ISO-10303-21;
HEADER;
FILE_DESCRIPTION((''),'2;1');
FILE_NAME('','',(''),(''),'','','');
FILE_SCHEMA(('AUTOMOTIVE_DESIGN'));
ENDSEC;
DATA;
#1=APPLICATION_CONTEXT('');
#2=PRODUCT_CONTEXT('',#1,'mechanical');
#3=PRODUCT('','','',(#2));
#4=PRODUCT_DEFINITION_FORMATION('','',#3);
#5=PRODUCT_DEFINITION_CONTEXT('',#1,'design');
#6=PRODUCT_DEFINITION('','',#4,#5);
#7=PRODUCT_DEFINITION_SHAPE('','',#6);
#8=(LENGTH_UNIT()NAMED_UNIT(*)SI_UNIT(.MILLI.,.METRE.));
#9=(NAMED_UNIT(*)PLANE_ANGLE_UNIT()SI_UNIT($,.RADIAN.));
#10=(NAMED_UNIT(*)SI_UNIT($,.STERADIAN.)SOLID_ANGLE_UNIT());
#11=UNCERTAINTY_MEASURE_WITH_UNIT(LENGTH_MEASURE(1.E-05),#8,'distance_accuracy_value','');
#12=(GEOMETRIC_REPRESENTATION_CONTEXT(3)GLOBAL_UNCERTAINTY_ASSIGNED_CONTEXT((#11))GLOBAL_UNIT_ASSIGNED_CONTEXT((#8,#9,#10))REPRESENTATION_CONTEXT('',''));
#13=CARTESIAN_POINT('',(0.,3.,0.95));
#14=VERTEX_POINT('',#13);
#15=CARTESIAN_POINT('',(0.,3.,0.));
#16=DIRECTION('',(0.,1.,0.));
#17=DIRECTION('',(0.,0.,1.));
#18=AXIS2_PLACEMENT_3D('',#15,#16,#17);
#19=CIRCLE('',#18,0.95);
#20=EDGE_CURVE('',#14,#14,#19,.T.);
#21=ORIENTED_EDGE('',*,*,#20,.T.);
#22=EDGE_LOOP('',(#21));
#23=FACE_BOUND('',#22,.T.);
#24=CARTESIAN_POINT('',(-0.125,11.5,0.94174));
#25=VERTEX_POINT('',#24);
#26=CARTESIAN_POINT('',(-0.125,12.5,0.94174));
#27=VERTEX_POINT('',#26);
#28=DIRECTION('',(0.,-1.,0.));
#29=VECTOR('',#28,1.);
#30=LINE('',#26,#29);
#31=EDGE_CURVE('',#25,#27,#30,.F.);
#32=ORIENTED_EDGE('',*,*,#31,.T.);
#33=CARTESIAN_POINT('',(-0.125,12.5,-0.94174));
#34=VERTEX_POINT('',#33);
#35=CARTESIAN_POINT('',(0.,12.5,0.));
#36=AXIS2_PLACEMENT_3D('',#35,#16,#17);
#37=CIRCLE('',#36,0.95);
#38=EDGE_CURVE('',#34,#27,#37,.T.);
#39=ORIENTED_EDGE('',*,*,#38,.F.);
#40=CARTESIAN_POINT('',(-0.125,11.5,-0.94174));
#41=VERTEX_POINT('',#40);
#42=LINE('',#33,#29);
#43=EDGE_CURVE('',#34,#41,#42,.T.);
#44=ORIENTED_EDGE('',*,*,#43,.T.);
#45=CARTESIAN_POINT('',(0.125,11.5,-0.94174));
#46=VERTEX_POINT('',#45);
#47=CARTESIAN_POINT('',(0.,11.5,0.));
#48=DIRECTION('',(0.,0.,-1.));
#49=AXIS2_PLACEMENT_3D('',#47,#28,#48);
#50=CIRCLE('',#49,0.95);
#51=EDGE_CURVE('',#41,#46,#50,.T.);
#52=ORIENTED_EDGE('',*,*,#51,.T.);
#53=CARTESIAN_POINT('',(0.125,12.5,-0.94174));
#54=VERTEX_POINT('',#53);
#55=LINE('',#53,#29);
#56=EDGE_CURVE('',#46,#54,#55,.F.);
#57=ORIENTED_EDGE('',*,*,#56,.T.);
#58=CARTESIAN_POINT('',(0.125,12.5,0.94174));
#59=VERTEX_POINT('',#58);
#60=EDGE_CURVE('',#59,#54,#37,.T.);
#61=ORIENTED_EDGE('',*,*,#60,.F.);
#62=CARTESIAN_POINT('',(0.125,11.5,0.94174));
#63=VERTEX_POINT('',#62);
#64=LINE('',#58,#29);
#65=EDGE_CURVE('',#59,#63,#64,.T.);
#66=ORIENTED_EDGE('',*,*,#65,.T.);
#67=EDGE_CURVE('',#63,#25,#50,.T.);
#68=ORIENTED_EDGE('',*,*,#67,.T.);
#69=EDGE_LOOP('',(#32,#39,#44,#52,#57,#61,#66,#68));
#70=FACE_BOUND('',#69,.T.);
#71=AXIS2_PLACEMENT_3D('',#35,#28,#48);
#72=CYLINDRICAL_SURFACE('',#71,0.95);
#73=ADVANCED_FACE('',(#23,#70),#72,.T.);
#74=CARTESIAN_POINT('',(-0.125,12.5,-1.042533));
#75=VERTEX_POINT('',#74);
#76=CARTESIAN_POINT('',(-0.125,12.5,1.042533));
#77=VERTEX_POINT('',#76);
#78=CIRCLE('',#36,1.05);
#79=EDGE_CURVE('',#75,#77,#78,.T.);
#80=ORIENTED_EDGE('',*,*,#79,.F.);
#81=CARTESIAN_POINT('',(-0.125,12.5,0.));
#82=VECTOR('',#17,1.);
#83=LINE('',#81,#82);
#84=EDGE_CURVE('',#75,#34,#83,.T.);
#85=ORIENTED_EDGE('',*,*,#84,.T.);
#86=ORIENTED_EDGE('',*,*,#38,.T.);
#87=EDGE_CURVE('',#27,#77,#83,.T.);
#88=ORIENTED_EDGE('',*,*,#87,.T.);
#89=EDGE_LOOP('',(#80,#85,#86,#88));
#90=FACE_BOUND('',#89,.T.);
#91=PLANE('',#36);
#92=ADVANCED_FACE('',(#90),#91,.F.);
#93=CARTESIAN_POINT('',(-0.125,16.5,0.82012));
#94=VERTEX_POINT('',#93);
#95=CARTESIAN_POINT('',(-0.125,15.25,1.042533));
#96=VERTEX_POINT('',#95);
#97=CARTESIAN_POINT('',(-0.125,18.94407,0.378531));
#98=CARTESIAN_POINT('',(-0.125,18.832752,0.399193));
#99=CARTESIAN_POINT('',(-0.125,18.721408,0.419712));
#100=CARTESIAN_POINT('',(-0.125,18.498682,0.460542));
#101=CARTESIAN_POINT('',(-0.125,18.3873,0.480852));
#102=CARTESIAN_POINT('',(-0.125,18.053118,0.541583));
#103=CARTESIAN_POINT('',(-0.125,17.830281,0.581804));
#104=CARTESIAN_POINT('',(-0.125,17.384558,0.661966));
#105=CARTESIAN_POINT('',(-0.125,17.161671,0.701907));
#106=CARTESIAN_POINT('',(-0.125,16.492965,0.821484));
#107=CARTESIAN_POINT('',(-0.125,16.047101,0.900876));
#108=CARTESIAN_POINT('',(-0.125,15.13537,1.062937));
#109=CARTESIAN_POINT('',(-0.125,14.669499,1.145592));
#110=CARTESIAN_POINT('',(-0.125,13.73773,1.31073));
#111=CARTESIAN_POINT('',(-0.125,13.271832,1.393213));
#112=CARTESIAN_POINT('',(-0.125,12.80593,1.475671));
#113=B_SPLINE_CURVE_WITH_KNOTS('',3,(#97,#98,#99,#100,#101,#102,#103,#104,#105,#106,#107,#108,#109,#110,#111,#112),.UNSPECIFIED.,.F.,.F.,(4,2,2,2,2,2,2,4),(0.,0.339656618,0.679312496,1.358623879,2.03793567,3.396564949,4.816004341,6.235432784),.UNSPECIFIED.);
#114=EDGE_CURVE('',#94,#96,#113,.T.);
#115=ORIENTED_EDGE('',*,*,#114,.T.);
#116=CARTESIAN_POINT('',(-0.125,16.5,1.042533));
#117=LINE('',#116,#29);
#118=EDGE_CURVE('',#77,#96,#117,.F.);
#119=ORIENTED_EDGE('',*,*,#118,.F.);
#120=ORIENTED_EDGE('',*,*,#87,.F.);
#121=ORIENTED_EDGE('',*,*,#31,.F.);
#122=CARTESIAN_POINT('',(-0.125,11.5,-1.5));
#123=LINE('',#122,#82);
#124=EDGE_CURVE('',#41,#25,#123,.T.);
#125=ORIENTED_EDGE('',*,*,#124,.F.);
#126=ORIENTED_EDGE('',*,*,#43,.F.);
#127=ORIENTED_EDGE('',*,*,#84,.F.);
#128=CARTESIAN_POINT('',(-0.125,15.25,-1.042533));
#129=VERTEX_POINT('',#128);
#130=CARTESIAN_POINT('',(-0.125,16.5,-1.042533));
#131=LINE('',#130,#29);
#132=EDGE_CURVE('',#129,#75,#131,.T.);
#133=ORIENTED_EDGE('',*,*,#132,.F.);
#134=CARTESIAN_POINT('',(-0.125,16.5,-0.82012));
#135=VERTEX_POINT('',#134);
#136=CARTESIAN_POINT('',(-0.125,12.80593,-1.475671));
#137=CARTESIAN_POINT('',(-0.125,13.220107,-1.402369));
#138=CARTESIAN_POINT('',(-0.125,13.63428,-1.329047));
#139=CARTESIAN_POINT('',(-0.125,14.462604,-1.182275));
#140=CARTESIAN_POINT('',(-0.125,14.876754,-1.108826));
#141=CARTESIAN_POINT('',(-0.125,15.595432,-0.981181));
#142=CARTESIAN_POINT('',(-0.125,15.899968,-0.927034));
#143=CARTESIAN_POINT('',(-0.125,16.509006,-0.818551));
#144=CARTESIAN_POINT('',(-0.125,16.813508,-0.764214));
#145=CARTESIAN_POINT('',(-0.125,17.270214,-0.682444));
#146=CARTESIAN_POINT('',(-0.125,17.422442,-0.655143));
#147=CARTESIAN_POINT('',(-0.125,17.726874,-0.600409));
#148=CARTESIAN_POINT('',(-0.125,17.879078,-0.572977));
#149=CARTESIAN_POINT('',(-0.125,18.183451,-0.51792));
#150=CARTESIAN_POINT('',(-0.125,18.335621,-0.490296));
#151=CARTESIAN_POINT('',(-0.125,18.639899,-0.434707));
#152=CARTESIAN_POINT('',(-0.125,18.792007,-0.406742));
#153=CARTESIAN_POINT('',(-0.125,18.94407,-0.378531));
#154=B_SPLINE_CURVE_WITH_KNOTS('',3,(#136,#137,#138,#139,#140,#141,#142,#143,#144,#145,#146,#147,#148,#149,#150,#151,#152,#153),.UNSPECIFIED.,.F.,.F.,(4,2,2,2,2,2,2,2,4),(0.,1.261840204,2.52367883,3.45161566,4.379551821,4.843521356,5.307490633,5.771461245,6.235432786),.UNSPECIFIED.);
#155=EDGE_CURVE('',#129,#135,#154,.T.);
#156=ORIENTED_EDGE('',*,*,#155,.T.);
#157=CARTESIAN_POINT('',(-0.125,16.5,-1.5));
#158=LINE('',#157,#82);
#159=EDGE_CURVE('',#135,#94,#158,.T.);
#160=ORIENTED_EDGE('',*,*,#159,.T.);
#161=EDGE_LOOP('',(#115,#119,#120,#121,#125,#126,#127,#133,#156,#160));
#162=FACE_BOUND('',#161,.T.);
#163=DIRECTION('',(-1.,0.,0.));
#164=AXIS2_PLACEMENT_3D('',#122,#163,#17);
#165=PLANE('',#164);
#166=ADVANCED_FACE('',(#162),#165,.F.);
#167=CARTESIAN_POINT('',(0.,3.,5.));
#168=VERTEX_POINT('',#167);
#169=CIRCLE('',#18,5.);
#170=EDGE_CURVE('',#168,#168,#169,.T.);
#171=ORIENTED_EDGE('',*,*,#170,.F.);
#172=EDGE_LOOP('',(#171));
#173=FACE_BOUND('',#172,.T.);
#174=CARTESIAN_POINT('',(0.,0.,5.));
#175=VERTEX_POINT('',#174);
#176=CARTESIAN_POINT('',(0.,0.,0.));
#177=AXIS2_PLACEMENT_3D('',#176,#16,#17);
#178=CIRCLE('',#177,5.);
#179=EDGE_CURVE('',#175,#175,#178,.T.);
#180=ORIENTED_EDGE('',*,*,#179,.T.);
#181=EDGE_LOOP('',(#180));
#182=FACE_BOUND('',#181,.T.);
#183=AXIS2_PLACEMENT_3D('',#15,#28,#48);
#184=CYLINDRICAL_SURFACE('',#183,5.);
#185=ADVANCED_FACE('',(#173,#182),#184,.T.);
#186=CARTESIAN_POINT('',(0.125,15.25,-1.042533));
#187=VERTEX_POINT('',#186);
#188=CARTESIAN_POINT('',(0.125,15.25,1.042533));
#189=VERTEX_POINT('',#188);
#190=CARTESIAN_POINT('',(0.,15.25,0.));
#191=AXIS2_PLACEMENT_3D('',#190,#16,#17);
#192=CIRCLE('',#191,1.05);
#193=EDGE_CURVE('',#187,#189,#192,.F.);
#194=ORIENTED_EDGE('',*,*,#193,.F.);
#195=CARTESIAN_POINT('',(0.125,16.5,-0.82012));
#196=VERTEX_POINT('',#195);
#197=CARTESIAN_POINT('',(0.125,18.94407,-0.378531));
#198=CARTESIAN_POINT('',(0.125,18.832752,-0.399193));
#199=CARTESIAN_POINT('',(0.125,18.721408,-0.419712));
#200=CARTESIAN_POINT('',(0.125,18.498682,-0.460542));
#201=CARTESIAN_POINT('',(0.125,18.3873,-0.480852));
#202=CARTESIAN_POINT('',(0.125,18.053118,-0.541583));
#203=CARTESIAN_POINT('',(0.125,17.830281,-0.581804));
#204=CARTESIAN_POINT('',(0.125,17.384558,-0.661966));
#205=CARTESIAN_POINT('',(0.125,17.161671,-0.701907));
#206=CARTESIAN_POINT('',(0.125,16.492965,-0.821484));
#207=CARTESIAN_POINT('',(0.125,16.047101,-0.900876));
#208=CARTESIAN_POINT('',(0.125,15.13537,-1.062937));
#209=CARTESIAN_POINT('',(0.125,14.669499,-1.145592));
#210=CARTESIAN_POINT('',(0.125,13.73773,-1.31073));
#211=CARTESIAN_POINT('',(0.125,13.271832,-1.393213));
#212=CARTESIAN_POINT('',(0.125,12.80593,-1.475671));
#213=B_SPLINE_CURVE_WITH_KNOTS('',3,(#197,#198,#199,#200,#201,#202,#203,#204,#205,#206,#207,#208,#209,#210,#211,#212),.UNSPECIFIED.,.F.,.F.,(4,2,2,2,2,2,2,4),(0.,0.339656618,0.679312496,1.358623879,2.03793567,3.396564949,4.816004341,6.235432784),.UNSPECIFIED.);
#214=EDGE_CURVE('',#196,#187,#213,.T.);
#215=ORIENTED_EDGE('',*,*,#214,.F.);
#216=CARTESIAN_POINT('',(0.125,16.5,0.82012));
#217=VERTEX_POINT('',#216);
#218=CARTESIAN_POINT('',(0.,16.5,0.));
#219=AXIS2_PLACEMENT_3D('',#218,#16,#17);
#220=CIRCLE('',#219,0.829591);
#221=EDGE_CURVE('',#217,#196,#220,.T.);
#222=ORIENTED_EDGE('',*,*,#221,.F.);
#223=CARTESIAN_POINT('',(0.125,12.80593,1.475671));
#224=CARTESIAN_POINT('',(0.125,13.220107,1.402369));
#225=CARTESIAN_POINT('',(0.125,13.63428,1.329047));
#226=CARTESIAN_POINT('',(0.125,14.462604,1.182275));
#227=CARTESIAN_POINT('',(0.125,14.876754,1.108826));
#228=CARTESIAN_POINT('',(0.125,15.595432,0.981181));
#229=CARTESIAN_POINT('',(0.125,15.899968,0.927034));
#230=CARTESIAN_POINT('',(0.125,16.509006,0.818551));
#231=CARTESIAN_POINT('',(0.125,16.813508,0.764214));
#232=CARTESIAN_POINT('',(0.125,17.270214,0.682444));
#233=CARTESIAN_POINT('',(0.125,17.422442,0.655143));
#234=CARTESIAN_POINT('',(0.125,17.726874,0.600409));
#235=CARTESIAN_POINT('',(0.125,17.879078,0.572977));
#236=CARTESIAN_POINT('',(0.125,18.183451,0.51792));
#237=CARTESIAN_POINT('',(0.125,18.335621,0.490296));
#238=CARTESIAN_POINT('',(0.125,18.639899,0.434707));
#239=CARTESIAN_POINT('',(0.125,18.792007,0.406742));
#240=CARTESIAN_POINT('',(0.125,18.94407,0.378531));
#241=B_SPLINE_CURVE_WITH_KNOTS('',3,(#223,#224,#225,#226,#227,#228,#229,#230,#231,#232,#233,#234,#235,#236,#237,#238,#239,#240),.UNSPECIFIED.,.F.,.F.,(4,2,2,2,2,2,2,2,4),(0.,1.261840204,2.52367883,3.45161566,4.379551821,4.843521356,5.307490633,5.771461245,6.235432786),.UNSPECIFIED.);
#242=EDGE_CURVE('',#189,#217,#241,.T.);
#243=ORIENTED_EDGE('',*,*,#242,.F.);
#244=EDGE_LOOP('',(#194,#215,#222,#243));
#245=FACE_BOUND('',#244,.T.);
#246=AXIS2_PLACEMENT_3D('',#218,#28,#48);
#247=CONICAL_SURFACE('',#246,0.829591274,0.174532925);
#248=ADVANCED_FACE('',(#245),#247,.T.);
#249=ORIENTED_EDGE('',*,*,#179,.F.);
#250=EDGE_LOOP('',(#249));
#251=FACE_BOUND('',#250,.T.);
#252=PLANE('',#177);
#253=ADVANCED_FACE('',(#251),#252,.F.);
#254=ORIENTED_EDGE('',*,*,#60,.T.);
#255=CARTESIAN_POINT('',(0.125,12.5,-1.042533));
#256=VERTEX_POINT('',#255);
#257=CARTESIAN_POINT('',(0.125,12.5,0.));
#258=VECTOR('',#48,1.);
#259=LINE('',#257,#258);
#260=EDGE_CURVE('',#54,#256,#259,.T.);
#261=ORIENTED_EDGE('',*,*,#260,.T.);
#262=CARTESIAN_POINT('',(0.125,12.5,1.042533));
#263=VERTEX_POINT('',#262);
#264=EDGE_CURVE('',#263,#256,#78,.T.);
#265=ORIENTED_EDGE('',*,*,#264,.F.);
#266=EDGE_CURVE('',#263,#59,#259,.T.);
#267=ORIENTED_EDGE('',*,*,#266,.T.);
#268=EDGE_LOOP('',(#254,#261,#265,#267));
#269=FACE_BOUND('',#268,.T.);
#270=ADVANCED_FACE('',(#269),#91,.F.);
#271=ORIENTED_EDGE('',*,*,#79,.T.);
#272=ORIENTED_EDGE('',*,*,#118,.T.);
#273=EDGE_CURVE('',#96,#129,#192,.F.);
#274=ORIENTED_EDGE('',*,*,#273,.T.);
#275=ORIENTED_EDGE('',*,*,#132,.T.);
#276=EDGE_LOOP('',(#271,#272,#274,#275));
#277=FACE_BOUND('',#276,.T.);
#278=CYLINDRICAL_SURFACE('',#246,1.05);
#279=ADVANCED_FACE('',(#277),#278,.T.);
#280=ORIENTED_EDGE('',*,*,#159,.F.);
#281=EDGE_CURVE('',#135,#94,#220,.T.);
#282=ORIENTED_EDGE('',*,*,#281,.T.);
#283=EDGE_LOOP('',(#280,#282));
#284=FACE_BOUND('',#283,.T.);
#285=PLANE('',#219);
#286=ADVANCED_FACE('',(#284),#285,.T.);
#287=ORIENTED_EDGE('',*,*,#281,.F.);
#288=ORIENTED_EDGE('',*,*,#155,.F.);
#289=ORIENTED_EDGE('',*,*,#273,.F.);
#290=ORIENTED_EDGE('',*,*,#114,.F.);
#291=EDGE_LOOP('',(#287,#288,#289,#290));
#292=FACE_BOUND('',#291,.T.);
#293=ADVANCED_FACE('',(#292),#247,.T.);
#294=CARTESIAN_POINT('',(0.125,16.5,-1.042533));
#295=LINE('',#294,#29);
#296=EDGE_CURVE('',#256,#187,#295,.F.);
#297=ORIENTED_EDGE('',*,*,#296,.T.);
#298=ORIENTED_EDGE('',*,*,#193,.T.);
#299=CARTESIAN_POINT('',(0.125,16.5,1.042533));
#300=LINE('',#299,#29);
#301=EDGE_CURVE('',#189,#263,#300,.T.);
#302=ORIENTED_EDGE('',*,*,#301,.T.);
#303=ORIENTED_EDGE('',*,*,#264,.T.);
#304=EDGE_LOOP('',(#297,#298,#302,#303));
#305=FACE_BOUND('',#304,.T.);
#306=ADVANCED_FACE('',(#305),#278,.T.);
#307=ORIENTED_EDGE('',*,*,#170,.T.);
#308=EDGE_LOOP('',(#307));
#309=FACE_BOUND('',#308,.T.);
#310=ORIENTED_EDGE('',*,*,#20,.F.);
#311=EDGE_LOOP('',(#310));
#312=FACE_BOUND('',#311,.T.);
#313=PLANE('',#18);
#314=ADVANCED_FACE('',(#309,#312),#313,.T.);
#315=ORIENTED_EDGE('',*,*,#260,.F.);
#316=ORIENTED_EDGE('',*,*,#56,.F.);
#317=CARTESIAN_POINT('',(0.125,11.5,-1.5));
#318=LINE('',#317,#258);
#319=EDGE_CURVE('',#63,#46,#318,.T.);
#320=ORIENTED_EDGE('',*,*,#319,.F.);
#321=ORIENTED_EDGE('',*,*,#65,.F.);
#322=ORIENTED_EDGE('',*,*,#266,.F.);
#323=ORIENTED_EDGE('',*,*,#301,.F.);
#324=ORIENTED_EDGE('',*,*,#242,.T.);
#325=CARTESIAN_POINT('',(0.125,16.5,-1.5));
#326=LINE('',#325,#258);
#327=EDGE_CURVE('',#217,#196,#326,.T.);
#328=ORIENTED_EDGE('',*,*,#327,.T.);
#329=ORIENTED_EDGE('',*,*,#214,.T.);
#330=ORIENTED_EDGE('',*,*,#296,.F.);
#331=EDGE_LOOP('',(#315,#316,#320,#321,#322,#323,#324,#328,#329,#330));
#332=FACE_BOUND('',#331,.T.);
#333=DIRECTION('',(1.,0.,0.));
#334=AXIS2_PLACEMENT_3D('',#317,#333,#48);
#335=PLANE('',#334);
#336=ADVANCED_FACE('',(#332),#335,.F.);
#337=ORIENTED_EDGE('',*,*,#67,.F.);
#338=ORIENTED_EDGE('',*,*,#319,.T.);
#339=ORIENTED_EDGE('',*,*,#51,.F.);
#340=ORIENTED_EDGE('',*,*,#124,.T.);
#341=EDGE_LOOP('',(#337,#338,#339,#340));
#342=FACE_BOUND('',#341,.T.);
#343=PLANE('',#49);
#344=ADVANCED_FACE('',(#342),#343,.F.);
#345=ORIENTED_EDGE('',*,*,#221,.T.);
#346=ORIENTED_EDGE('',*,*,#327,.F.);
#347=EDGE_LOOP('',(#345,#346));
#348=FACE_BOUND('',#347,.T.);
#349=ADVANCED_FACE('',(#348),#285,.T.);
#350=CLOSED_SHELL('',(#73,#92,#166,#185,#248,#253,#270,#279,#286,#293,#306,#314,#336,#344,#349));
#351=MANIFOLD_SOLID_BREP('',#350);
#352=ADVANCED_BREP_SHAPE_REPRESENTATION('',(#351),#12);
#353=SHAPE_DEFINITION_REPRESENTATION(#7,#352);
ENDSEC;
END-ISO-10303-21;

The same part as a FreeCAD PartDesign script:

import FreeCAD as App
import Part
import Sketcher

V = App.Vector


def edges_at(feature, points):
    """Names of the edges that pass closest to the given points."""
    edges = feature.Shape.Edges
    near = lambda p: min(range(len(edges)), key=lambda i: edges[i].distToShape(Part.Vertex(*p))[0])
    return sorted({f"Edge{near(p) + 1}" for p in points})

doc = App.newDocument("Part")
body = doc.addObject("PartDesign::Body", "Body")

sketch1 = body.newObject("Sketcher::SketchObject", "Sketch")
sketch1.AttachmentSupport = (doc.getObject("XZ_Plane"), [""])
sketch1.MapMode = "FlatFace"
sketch1.addGeometry(Part.Circle(V(0, 0, 0), V(0, 0, 1), 5), False)
sketch1.addConstraint([
    Sketcher.Constraint("Coincident", 0, 3, -1, 1),
    Sketcher.Constraint("Diameter", 0, 10.0),
])
pad1 = body.newObject("PartDesign::Pad", "Pad")
pad1.Profile = sketch1
pad1.Length = 3
pad1.Reversed = True

sketch2 = body.newObject("Sketcher::SketchObject", "Sketch001")
sketch2.AttachmentSupport = (doc.getObject("XZ_Plane"), [""])
sketch2.MapMode = "FlatFace"
sketch2.AttachmentOffset = App.Placement(V(0, 0, -3), App.Rotation())
sketch2.addGeometry(Part.Circle(V(0, 0, 0), V(0, 0, 1), 0.9), False)
sketch2.addConstraint([
    Sketcher.Constraint("Coincident", 0, 3, -1, 1),
    Sketcher.Constraint("Diameter", 0, 1.9),
])
pad2 = body.newObject("PartDesign::Pad", "Pad001")
pad2.Profile = sketch2
pad2.Length = 9.5
pad2.Reversed = True

sketch3 = body.newObject("Sketcher::SketchObject", "Sketch002")
sketch3.AttachmentSupport = (doc.getObject("XZ_Plane"), [""])
sketch3.MapMode = "FlatFace"
sketch3.AttachmentOffset = App.Placement(V(0, 0, -12.5), App.Rotation())
sketch3.addGeometry(Part.Circle(V(0, 0, 0), V(0, 0, 1), 1.1), False)
sketch3.addConstraint([
    Sketcher.Constraint("Coincident", 0, 3, -1, 1),
    Sketcher.Constraint("Diameter", 0, 2.1),
])
pad3 = body.newObject("PartDesign::Pad", "Pad002")
pad3.Profile = sketch3
pad3.Length = 4
pad3.Reversed = True
doc.recompute()

chamfer = body.newObject("PartDesign::Chamfer", "Chamfer")
chamfer.Base = (pad3, edges_at(pad3, [(0, 16.5, -1.05)]))
chamfer.ChamferType = "Two distances"
chamfer.Size = 1.25
chamfer.Size2 = 0.220409

sketch4 = body.newObject("Sketcher::SketchObject", "Sketch003")
sketch4.AttachmentSupport = (doc.getObject("XZ_Plane"), [""])
sketch4.MapMode = "FlatFace"
sketch4.AttachmentOffset = App.Placement(V(0, 0, -16.5), App.Rotation())
sketch4.addGeometry([
    Part.LineSegment(V(-0.12, -1.5, 0), V(-0.12, 1.5, 0)),
    Part.LineSegment(V(-0.12, 1.5, 0), V(0.12, 1.5, 0)),
    Part.LineSegment(V(0.12, 1.5, 0), V(0.12, -1.5, 0)),
    Part.LineSegment(V(0.12, -1.5, 0), V(-0.12, -1.5, 0)),
], False)
sketch4.addConstraint([
    Sketcher.Constraint("Coincident", 0, 2, 1, 1),
    Sketcher.Constraint("Coincident", 1, 2, 2, 1),
    Sketcher.Constraint("Coincident", 2, 2, 3, 1),
    Sketcher.Constraint("Coincident", 3, 2, 0, 1),
    Sketcher.Constraint("Vertical", 0),
    Sketcher.Constraint("Horizontal", 1),
    Sketcher.Constraint("Vertical", 2),
    Sketcher.Constraint("Horizontal", 3),
    Sketcher.Constraint("Symmetric", 0, 2, 2, 2, -1, 1),
    Sketcher.Constraint("DistanceY", 0, 1, 0, 2, 3.0),
    Sketcher.Constraint("DistanceX", 1, 1, 1, 2, 0.25),
])
pocket1 = body.newObject("PartDesign::Pocket", "Pocket")
pocket1.Profile = sketch4
pocket1.Length = 5
pocket1.Reversed = True

doc.recompute()
